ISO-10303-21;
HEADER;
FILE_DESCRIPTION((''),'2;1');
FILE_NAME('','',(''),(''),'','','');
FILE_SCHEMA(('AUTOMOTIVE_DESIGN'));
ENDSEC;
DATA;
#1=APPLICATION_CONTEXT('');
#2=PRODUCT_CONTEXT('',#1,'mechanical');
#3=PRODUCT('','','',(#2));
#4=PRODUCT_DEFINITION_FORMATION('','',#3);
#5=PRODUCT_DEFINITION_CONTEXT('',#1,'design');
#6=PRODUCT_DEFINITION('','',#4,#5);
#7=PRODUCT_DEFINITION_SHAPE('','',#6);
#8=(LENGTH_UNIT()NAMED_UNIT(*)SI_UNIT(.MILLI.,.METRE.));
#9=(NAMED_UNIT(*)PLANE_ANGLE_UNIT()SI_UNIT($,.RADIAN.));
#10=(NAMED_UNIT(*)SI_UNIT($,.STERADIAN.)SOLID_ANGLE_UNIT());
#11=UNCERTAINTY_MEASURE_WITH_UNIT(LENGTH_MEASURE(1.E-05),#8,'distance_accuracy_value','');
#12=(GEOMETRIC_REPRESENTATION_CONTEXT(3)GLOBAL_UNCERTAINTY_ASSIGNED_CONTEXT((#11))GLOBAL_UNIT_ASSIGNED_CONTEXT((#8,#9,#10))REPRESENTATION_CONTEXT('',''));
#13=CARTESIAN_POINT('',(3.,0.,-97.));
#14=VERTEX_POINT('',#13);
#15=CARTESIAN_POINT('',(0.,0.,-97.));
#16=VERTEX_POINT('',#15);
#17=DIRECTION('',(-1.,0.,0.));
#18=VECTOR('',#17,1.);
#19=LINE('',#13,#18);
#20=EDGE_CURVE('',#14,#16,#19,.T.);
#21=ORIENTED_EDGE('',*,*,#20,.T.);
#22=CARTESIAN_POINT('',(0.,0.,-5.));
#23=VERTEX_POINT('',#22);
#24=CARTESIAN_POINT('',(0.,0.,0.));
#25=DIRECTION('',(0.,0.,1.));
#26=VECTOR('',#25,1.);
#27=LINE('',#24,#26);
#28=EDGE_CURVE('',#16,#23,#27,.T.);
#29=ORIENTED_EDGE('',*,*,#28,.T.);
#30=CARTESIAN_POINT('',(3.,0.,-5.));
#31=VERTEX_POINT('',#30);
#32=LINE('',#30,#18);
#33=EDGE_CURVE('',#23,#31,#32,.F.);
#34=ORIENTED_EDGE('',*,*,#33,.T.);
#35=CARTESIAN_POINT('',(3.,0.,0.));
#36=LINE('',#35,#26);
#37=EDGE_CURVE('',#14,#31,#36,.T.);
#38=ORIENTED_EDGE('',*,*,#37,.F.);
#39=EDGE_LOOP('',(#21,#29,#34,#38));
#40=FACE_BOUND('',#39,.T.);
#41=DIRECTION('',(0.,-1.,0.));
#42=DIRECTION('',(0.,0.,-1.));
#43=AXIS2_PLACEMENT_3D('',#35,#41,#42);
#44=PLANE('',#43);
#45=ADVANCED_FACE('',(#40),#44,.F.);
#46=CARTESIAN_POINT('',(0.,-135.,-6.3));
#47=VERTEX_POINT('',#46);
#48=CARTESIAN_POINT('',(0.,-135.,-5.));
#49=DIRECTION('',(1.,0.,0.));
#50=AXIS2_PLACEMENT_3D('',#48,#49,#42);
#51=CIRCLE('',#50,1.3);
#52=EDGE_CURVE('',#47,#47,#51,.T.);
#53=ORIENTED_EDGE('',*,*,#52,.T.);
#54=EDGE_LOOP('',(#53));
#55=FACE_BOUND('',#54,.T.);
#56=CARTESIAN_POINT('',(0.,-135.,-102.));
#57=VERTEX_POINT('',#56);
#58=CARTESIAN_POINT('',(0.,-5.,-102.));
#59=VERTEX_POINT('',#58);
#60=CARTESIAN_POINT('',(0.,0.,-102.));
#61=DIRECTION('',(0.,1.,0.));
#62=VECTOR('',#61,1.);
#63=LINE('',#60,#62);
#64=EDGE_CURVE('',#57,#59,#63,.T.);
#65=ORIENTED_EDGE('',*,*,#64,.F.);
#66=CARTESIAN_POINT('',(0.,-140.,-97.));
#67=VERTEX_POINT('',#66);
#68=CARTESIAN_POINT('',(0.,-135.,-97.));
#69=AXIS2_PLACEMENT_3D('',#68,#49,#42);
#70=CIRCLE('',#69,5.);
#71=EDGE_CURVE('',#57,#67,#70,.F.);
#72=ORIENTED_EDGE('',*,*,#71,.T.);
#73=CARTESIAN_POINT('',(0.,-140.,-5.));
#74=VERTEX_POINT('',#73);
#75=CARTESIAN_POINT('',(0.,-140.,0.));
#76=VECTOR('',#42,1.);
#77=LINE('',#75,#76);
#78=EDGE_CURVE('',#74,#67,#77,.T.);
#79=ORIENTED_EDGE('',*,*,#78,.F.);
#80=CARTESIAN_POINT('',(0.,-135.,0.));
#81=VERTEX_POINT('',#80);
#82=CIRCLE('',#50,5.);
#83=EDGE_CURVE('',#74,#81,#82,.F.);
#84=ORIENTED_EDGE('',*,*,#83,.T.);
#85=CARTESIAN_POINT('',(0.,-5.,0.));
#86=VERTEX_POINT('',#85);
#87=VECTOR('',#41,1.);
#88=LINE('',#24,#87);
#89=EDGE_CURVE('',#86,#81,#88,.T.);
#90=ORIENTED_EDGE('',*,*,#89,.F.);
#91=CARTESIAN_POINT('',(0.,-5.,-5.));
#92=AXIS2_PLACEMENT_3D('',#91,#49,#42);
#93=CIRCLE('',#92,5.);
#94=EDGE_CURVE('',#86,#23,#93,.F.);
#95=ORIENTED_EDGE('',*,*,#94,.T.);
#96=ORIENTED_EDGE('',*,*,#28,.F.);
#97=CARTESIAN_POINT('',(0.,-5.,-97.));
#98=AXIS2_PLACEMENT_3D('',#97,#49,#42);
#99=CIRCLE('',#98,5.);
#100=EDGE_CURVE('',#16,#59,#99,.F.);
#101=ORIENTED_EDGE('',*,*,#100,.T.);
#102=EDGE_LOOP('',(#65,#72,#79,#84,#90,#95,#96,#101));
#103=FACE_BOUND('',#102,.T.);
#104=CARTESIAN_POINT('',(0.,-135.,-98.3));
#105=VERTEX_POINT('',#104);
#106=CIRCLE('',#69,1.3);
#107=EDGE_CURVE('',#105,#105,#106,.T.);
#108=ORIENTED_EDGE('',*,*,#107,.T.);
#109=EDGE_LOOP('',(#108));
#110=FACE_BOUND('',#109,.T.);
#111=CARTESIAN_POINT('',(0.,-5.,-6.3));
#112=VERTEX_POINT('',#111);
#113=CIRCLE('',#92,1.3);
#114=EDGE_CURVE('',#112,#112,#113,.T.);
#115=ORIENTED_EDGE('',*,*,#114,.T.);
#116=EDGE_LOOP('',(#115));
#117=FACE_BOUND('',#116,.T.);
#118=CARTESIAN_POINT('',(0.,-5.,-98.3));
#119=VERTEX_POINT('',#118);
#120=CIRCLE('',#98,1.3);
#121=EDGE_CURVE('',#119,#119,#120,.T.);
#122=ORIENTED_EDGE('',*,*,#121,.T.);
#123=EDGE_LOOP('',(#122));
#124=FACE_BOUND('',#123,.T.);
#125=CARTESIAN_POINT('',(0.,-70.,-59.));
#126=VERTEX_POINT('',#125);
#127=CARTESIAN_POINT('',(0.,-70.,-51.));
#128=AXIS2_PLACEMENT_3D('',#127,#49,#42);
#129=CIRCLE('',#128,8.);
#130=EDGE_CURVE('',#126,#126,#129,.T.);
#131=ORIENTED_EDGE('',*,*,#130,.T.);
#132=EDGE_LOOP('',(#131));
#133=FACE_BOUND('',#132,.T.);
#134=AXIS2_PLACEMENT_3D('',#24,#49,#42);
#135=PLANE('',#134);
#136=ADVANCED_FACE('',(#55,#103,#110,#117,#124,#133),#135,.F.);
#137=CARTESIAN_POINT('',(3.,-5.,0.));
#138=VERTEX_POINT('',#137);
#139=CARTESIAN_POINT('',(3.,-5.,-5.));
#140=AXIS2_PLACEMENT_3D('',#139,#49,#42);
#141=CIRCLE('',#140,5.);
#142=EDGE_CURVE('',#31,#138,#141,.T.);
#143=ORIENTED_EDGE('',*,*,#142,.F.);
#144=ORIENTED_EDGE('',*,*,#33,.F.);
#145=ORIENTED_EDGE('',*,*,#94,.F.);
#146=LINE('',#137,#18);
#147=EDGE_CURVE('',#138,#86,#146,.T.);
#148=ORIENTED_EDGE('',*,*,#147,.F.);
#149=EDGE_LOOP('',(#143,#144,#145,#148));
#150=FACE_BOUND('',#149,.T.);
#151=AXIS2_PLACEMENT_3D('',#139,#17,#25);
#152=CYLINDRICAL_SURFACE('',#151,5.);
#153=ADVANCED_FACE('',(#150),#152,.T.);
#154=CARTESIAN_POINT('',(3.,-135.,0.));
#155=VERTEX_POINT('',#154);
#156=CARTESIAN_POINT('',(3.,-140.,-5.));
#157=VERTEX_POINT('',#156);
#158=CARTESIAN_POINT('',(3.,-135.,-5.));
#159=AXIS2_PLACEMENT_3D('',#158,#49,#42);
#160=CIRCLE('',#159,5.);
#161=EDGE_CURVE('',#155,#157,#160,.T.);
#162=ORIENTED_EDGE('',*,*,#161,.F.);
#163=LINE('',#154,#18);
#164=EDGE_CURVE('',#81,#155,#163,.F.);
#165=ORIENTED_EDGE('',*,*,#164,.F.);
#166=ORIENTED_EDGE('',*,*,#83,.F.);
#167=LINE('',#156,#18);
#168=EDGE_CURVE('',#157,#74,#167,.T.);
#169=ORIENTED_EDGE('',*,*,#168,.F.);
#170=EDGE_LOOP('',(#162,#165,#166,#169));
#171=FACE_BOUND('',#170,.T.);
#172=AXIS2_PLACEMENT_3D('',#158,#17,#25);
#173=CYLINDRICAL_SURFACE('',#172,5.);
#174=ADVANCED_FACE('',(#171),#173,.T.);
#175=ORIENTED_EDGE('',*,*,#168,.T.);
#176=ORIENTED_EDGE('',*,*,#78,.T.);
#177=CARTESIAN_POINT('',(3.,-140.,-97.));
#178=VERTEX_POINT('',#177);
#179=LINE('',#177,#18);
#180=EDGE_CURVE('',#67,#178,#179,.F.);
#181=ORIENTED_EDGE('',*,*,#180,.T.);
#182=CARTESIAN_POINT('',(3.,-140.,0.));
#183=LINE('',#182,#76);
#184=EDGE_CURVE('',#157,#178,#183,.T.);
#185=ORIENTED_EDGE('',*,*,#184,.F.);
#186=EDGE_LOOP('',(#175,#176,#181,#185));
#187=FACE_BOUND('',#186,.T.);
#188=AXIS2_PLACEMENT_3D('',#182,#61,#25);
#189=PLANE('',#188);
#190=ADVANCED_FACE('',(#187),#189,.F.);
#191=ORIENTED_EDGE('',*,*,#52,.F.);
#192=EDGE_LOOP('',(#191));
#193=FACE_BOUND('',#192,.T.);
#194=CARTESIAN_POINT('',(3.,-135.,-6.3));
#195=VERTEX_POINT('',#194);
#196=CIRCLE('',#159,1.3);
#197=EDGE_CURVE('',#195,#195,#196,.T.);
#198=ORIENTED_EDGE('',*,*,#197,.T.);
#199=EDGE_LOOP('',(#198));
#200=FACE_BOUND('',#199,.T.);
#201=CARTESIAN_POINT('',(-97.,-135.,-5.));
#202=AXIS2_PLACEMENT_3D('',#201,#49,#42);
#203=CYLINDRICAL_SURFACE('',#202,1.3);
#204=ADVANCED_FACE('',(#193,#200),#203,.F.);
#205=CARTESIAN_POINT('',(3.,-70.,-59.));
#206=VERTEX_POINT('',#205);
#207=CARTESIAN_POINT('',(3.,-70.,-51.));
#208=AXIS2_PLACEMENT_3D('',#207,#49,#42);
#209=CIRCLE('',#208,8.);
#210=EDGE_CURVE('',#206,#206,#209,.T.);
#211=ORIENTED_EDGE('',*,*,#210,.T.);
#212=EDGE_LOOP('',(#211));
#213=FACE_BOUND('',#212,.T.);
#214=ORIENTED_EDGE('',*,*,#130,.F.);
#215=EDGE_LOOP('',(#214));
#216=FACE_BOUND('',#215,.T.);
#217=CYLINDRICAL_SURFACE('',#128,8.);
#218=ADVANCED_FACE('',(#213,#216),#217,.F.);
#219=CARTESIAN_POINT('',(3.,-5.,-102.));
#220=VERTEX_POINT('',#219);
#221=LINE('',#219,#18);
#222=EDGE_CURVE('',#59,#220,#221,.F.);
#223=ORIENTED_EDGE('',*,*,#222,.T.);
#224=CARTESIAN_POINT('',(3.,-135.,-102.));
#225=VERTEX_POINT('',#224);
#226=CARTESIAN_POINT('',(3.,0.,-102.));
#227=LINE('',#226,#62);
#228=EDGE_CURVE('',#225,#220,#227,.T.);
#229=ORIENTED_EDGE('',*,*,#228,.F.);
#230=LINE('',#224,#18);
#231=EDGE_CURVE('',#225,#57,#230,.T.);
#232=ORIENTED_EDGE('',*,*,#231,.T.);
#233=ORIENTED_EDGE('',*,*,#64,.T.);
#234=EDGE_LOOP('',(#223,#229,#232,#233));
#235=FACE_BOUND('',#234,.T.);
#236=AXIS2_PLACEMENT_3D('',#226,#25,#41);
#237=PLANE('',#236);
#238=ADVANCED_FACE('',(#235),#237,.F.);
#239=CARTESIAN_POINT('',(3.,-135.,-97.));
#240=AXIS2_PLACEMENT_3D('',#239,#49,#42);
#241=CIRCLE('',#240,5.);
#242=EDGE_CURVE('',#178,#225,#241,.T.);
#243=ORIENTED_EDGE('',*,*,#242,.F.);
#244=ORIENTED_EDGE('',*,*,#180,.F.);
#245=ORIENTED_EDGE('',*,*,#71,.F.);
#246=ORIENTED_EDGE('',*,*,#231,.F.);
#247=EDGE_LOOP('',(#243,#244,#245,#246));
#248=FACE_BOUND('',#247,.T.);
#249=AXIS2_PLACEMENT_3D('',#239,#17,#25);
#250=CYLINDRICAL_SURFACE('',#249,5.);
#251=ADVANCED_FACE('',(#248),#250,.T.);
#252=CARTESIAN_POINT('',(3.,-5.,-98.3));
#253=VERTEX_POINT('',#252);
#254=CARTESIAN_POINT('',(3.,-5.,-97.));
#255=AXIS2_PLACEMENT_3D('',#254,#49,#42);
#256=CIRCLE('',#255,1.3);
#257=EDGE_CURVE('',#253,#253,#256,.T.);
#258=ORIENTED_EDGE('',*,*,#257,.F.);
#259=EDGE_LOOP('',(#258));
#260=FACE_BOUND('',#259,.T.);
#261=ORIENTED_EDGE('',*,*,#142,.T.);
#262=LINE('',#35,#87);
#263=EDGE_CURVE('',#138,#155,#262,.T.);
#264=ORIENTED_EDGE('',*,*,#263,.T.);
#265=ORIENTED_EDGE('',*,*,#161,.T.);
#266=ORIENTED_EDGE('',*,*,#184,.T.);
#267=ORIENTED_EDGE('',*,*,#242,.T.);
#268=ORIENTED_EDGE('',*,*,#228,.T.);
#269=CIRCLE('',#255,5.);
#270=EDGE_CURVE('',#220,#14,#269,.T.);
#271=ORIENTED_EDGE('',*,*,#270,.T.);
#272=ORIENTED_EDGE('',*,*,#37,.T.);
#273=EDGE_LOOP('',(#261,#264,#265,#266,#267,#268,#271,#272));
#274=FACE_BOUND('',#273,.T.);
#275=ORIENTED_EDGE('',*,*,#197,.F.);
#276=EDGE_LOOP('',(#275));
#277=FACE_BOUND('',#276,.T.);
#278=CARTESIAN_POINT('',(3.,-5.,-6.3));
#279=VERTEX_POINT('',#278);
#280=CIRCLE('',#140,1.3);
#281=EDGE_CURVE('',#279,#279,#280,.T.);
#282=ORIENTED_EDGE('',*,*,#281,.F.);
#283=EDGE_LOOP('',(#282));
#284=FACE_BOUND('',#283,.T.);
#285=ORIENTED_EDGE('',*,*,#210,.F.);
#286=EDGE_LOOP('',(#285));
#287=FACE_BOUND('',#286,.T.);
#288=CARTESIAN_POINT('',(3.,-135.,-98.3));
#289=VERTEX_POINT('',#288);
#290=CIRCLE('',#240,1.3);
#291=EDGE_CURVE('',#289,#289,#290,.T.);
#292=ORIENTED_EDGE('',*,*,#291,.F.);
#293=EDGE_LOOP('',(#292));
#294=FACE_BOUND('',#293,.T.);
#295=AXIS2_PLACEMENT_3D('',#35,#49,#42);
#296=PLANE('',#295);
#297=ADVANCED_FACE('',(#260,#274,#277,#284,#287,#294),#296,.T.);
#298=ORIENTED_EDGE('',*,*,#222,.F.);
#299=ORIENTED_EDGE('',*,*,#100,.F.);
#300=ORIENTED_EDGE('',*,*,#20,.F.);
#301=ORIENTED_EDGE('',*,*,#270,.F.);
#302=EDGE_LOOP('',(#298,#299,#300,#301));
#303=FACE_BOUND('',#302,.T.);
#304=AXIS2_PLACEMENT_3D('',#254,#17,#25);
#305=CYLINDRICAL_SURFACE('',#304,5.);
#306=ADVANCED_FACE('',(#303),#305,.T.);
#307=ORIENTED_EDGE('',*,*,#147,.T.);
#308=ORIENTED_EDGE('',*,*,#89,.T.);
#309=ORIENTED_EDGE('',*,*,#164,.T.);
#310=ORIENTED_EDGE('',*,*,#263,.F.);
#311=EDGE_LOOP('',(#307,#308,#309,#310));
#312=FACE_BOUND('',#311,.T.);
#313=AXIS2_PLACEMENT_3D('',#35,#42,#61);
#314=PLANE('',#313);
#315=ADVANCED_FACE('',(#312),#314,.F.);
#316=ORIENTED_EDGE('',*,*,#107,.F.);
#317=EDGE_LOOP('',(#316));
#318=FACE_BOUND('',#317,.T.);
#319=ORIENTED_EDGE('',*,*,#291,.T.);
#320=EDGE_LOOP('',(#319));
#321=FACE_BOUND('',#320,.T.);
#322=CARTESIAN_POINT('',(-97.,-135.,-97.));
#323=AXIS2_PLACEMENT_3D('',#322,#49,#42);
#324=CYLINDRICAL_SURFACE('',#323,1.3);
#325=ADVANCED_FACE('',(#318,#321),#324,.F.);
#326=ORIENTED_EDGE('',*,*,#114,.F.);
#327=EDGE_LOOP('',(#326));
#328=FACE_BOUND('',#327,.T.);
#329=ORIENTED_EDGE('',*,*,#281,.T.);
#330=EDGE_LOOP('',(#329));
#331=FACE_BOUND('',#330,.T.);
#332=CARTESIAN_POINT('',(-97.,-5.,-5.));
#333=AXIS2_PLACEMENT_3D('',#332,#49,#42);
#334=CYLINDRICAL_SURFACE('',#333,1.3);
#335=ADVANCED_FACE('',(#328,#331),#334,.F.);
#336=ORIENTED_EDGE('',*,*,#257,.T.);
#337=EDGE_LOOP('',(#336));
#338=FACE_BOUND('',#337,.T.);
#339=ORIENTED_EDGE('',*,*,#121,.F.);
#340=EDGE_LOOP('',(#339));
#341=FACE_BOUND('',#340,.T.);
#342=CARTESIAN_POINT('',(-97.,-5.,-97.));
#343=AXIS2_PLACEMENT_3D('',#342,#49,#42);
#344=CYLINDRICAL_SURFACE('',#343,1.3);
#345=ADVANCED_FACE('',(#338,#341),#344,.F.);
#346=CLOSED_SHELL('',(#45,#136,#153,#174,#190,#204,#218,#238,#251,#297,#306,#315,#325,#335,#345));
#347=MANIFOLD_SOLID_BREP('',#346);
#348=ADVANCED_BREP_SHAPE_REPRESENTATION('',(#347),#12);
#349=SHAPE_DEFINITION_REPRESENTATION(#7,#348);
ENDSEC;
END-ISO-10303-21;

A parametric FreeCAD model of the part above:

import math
import FreeCAD as App
import Part
import Sketcher
from FreeCAD import Vector
Q = App.Units.Quantity


def edges_at(feature, points):
    """Names of the edges that pass closest to the given points."""
    edges = feature.Shape.Edges
    near = lambda p: min(range(len(edges)), key=lambda i: edges[i].distToShape(Part.Vertex(*p))[0])
    return sorted({f"Edge{near(p) + 1}" for p in points})

doc = App.newDocument("Part")
params = doc.addObject("Spreadsheet::Sheet", "Params")
for row, (alias, value) in enumerate([
    ("sketch1_width", "140 mm"),
    ("sketch1_height", "102 mm"),
    ("pad1_length", "3 mm"),
    ("fillet_radius", "5 mm"),
    ("sketch2_radius", "8 mm"),
    ("pocket1_length", "3 mm"),
    ("sketch3_diameter", "2.6 mm"),
    ("pocket2_length", "100 mm"),
], start=1):
    params.set(f"A{row}", alias)
    params.set(f"B{row}", "=" + value)
    params.setAlias(f"B{row}", alias)

body = doc.addObject("PartDesign::Body", "Body")

# Sketch on YZ plane
sketch1 = body.newObject("Sketcher::SketchObject", "Sketch")
sketch1.AttachmentSupport = (doc.getObject("YZ_Plane"), [""])
sketch1.MapMode = "FlatFace"
sketch1.addGeometry([
    Part.LineSegment(Vector(0, 0, 0), Vector(-140, 0, 0)),
    Part.LineSegment(Vector(-140, 0, 0), Vector(-140, -102, 0)),
    Part.LineSegment(Vector(-140, -102, 0), Vector(0, -102, 0)),
    Part.LineSegment(Vector(0, -102, 0), Vector(0, 0, 0)),
], False)
sketch1.addConstraint([
    Sketcher.Constraint("Coincident", 0, 2, 1, 1),
    Sketcher.Constraint("Coincident", 1, 2, 2, 1),
    Sketcher.Constraint("Coincident", 2, 2, 3, 1),
    Sketcher.Constraint("Coincident", 3, 2, 0, 1),
    Sketcher.Constraint("Horizontal", 0),
    Sketcher.Constraint("Vertical", 1),
    Sketcher.Constraint("Horizontal", 2),
    Sketcher.Constraint("Vertical", 3),
    Sketcher.Constraint("Coincident", 3, 2, -1, 1),
    Sketcher.Constraint("DistanceX", 0, 2, 0, 1, Q("140 mm")),
    Sketcher.Constraint("DistanceY", 1, 2, 1, 1, Q("102 mm")),
])
sketch1.setExpression("Constraints[9]", "Params.sketch1_width")
sketch1.setExpression("Constraints[10]", "Params.sketch1_height")
pad1 = body.newObject("PartDesign::Pad", "Pad")
pad1.Profile = sketch1
pad1.setExpression("Length", "Params.pad1_length")
doc.recompute()

fillet = body.newObject("PartDesign::Fillet", "Fillet")
fillet.Base = (pad1, edges_at(pad1, [
    (1.5, 0, 0),
    (1.5, 0, -102),
    (1.5, -140, -102),
    (1.5, -140, 0),
]))
fillet.setExpression("Radius", "Params.fillet_radius")

# Sketch on YZ plane
sketch2 = body.newObject("Sketcher::SketchObject", "Sketch001")
sketch2.AttachmentSupport = (doc.getObject("YZ_Plane"), [""])
sketch2.MapMode = "FlatFace"
sketch2.AttachmentOffset = App.Placement(Vector(0, 0, 3), App.Rotation())
sketch2.addGeometry([
    Part.ArcOfCircle(Part.Circle(Vector(-70, -51, 0), Vector(0, 0, 1), 8), math.radians(-90), math.radians(-36)),  # 0
    Part.ArcOfCircle(Part.Circle(Vector(-70, -51, 0), Vector(0, 0, 1), 8), math.radians(-36), math.radians(36)),  # 1
    Part.ArcOfCircle(Part.Circle(Vector(-70, -51, 0), Vector(0, 0, 1), 8), math.radians(36), math.radians(144)),  # 2
    Part.ArcOfCircle(Part.Circle(Vector(-70, -51, 0), Vector(0, 0, 1), 8), math.radians(144), math.radians(216)),  # 3
    Part.ArcOfCircle(Part.Circle(Vector(-70, -51, 0), Vector(0, 0, 1), 8), math.radians(-144), math.radians(-90)),  # 4
], False)
sketch2.addConstraint([
    Sketcher.Constraint("Tangent", 0, 2, 1, 1),
    Sketcher.Constraint("Tangent", 1, 2, 2, 1),
    Sketcher.Constraint("Tangent", 2, 2, 3, 1),
    Sketcher.Constraint("Tangent", 3, 2, 4, 1),
    Sketcher.Constraint("Tangent", 4, 2, 0, 1),
    Sketcher.Constraint("Coincident", 2, 3, 0, 3),
    Sketcher.Constraint("Horizontal", 1, 2, 2, 2),
    Sketcher.Constraint("Horizontal", 0, 2, 3, 2),
    Sketcher.Constraint("Vertical", 0, 2, 1, 2),
    Sketcher.Constraint("Vertical", 3, 3, 4, 2),
    Sketcher.Constraint("Radius", 0, Q("8 mm")),
    Sketcher.Constraint("DistanceX", 0, 3, -1, 1, Q("70 mm")),
    Sketcher.Constraint("DistanceY", 0, 3, -1, 1, Q("51 mm")),
    Sketcher.Constraint("DistanceX", 0, 2, -1, 1, Q("63.516257 mm")),
])
sketch2.setExpression("Constraints[10]", "Params.sketch2_radius")
pocket1 = body.newObject("PartDesign::Pocket", "Pocket")
pocket1.Profile = sketch2
pocket1.setExpression("Length", "Params.pocket1_length")

# Sketch on YZ plane
sketch3 = body.newObject("Sketcher::SketchObject", "Sketch002")
sketch3.AttachmentSupport = (doc.getObject("YZ_Plane"), [""])
sketch3.MapMode = "FlatFace"
sketch3.AttachmentOffset = App.Placement(Vector(0, 0, 3), App.Rotation())
sketch3.addGeometry([
    Part.Circle(Vector(-135, -5, 0), Vector(0, 0, 1), 1.3),
    Part.Circle(Vector(-5, -5, 0), Vector(0, 0, 1), 1.3),
    Part.Circle(Vector(-5, -97, 0), Vector(0, 0, 1), 1.3),
    Part.Circle(Vector(-135, -97, 0), Vector(0, 0, 1), 1.3),
], False)
sketch3.addConstraint([
    Sketcher.Constraint("Equal", 0, 1),
    Sketcher.Constraint("Equal", 1, 2),
    Sketcher.Constraint("Equal", 2, 3),
    Sketcher.Constraint("Horizontal", 0, 3, 1, 3),
    Sketcher.Constraint("Horizontal", 2, 3, 3, 3),
    Sketcher.Constraint("Vertical", 1, 3, 2, 3),
    Sketcher.Constraint("Vertical", 0, 3, 3, 3),
    Sketcher.Constraint("Diameter", 0, Q("2.6 mm")),
    Sketcher.Constraint("DistanceX", 0, 3, -1, 1, Q("135 mm")),
    Sketcher.Constraint("DistanceY", 0, 3, -1, 1, Q("5 mm")),
    Sketcher.Constraint("DistanceX", 1, 3, -1, 1, Q("5 mm")),
    Sketcher.Constraint("DistanceY", 2, 3, -1, 1, Q("97 mm")),
])
sketch3.setExpression("Constraints[7]", "Params.sketch3_diameter")
pocket2 = body.newObject("PartDesign::Pocket", "Pocket001")
pocket2.Profile = sketch3
pocket2.setExpression("Length", "Params.pocket2_length")

doc.recompute()
